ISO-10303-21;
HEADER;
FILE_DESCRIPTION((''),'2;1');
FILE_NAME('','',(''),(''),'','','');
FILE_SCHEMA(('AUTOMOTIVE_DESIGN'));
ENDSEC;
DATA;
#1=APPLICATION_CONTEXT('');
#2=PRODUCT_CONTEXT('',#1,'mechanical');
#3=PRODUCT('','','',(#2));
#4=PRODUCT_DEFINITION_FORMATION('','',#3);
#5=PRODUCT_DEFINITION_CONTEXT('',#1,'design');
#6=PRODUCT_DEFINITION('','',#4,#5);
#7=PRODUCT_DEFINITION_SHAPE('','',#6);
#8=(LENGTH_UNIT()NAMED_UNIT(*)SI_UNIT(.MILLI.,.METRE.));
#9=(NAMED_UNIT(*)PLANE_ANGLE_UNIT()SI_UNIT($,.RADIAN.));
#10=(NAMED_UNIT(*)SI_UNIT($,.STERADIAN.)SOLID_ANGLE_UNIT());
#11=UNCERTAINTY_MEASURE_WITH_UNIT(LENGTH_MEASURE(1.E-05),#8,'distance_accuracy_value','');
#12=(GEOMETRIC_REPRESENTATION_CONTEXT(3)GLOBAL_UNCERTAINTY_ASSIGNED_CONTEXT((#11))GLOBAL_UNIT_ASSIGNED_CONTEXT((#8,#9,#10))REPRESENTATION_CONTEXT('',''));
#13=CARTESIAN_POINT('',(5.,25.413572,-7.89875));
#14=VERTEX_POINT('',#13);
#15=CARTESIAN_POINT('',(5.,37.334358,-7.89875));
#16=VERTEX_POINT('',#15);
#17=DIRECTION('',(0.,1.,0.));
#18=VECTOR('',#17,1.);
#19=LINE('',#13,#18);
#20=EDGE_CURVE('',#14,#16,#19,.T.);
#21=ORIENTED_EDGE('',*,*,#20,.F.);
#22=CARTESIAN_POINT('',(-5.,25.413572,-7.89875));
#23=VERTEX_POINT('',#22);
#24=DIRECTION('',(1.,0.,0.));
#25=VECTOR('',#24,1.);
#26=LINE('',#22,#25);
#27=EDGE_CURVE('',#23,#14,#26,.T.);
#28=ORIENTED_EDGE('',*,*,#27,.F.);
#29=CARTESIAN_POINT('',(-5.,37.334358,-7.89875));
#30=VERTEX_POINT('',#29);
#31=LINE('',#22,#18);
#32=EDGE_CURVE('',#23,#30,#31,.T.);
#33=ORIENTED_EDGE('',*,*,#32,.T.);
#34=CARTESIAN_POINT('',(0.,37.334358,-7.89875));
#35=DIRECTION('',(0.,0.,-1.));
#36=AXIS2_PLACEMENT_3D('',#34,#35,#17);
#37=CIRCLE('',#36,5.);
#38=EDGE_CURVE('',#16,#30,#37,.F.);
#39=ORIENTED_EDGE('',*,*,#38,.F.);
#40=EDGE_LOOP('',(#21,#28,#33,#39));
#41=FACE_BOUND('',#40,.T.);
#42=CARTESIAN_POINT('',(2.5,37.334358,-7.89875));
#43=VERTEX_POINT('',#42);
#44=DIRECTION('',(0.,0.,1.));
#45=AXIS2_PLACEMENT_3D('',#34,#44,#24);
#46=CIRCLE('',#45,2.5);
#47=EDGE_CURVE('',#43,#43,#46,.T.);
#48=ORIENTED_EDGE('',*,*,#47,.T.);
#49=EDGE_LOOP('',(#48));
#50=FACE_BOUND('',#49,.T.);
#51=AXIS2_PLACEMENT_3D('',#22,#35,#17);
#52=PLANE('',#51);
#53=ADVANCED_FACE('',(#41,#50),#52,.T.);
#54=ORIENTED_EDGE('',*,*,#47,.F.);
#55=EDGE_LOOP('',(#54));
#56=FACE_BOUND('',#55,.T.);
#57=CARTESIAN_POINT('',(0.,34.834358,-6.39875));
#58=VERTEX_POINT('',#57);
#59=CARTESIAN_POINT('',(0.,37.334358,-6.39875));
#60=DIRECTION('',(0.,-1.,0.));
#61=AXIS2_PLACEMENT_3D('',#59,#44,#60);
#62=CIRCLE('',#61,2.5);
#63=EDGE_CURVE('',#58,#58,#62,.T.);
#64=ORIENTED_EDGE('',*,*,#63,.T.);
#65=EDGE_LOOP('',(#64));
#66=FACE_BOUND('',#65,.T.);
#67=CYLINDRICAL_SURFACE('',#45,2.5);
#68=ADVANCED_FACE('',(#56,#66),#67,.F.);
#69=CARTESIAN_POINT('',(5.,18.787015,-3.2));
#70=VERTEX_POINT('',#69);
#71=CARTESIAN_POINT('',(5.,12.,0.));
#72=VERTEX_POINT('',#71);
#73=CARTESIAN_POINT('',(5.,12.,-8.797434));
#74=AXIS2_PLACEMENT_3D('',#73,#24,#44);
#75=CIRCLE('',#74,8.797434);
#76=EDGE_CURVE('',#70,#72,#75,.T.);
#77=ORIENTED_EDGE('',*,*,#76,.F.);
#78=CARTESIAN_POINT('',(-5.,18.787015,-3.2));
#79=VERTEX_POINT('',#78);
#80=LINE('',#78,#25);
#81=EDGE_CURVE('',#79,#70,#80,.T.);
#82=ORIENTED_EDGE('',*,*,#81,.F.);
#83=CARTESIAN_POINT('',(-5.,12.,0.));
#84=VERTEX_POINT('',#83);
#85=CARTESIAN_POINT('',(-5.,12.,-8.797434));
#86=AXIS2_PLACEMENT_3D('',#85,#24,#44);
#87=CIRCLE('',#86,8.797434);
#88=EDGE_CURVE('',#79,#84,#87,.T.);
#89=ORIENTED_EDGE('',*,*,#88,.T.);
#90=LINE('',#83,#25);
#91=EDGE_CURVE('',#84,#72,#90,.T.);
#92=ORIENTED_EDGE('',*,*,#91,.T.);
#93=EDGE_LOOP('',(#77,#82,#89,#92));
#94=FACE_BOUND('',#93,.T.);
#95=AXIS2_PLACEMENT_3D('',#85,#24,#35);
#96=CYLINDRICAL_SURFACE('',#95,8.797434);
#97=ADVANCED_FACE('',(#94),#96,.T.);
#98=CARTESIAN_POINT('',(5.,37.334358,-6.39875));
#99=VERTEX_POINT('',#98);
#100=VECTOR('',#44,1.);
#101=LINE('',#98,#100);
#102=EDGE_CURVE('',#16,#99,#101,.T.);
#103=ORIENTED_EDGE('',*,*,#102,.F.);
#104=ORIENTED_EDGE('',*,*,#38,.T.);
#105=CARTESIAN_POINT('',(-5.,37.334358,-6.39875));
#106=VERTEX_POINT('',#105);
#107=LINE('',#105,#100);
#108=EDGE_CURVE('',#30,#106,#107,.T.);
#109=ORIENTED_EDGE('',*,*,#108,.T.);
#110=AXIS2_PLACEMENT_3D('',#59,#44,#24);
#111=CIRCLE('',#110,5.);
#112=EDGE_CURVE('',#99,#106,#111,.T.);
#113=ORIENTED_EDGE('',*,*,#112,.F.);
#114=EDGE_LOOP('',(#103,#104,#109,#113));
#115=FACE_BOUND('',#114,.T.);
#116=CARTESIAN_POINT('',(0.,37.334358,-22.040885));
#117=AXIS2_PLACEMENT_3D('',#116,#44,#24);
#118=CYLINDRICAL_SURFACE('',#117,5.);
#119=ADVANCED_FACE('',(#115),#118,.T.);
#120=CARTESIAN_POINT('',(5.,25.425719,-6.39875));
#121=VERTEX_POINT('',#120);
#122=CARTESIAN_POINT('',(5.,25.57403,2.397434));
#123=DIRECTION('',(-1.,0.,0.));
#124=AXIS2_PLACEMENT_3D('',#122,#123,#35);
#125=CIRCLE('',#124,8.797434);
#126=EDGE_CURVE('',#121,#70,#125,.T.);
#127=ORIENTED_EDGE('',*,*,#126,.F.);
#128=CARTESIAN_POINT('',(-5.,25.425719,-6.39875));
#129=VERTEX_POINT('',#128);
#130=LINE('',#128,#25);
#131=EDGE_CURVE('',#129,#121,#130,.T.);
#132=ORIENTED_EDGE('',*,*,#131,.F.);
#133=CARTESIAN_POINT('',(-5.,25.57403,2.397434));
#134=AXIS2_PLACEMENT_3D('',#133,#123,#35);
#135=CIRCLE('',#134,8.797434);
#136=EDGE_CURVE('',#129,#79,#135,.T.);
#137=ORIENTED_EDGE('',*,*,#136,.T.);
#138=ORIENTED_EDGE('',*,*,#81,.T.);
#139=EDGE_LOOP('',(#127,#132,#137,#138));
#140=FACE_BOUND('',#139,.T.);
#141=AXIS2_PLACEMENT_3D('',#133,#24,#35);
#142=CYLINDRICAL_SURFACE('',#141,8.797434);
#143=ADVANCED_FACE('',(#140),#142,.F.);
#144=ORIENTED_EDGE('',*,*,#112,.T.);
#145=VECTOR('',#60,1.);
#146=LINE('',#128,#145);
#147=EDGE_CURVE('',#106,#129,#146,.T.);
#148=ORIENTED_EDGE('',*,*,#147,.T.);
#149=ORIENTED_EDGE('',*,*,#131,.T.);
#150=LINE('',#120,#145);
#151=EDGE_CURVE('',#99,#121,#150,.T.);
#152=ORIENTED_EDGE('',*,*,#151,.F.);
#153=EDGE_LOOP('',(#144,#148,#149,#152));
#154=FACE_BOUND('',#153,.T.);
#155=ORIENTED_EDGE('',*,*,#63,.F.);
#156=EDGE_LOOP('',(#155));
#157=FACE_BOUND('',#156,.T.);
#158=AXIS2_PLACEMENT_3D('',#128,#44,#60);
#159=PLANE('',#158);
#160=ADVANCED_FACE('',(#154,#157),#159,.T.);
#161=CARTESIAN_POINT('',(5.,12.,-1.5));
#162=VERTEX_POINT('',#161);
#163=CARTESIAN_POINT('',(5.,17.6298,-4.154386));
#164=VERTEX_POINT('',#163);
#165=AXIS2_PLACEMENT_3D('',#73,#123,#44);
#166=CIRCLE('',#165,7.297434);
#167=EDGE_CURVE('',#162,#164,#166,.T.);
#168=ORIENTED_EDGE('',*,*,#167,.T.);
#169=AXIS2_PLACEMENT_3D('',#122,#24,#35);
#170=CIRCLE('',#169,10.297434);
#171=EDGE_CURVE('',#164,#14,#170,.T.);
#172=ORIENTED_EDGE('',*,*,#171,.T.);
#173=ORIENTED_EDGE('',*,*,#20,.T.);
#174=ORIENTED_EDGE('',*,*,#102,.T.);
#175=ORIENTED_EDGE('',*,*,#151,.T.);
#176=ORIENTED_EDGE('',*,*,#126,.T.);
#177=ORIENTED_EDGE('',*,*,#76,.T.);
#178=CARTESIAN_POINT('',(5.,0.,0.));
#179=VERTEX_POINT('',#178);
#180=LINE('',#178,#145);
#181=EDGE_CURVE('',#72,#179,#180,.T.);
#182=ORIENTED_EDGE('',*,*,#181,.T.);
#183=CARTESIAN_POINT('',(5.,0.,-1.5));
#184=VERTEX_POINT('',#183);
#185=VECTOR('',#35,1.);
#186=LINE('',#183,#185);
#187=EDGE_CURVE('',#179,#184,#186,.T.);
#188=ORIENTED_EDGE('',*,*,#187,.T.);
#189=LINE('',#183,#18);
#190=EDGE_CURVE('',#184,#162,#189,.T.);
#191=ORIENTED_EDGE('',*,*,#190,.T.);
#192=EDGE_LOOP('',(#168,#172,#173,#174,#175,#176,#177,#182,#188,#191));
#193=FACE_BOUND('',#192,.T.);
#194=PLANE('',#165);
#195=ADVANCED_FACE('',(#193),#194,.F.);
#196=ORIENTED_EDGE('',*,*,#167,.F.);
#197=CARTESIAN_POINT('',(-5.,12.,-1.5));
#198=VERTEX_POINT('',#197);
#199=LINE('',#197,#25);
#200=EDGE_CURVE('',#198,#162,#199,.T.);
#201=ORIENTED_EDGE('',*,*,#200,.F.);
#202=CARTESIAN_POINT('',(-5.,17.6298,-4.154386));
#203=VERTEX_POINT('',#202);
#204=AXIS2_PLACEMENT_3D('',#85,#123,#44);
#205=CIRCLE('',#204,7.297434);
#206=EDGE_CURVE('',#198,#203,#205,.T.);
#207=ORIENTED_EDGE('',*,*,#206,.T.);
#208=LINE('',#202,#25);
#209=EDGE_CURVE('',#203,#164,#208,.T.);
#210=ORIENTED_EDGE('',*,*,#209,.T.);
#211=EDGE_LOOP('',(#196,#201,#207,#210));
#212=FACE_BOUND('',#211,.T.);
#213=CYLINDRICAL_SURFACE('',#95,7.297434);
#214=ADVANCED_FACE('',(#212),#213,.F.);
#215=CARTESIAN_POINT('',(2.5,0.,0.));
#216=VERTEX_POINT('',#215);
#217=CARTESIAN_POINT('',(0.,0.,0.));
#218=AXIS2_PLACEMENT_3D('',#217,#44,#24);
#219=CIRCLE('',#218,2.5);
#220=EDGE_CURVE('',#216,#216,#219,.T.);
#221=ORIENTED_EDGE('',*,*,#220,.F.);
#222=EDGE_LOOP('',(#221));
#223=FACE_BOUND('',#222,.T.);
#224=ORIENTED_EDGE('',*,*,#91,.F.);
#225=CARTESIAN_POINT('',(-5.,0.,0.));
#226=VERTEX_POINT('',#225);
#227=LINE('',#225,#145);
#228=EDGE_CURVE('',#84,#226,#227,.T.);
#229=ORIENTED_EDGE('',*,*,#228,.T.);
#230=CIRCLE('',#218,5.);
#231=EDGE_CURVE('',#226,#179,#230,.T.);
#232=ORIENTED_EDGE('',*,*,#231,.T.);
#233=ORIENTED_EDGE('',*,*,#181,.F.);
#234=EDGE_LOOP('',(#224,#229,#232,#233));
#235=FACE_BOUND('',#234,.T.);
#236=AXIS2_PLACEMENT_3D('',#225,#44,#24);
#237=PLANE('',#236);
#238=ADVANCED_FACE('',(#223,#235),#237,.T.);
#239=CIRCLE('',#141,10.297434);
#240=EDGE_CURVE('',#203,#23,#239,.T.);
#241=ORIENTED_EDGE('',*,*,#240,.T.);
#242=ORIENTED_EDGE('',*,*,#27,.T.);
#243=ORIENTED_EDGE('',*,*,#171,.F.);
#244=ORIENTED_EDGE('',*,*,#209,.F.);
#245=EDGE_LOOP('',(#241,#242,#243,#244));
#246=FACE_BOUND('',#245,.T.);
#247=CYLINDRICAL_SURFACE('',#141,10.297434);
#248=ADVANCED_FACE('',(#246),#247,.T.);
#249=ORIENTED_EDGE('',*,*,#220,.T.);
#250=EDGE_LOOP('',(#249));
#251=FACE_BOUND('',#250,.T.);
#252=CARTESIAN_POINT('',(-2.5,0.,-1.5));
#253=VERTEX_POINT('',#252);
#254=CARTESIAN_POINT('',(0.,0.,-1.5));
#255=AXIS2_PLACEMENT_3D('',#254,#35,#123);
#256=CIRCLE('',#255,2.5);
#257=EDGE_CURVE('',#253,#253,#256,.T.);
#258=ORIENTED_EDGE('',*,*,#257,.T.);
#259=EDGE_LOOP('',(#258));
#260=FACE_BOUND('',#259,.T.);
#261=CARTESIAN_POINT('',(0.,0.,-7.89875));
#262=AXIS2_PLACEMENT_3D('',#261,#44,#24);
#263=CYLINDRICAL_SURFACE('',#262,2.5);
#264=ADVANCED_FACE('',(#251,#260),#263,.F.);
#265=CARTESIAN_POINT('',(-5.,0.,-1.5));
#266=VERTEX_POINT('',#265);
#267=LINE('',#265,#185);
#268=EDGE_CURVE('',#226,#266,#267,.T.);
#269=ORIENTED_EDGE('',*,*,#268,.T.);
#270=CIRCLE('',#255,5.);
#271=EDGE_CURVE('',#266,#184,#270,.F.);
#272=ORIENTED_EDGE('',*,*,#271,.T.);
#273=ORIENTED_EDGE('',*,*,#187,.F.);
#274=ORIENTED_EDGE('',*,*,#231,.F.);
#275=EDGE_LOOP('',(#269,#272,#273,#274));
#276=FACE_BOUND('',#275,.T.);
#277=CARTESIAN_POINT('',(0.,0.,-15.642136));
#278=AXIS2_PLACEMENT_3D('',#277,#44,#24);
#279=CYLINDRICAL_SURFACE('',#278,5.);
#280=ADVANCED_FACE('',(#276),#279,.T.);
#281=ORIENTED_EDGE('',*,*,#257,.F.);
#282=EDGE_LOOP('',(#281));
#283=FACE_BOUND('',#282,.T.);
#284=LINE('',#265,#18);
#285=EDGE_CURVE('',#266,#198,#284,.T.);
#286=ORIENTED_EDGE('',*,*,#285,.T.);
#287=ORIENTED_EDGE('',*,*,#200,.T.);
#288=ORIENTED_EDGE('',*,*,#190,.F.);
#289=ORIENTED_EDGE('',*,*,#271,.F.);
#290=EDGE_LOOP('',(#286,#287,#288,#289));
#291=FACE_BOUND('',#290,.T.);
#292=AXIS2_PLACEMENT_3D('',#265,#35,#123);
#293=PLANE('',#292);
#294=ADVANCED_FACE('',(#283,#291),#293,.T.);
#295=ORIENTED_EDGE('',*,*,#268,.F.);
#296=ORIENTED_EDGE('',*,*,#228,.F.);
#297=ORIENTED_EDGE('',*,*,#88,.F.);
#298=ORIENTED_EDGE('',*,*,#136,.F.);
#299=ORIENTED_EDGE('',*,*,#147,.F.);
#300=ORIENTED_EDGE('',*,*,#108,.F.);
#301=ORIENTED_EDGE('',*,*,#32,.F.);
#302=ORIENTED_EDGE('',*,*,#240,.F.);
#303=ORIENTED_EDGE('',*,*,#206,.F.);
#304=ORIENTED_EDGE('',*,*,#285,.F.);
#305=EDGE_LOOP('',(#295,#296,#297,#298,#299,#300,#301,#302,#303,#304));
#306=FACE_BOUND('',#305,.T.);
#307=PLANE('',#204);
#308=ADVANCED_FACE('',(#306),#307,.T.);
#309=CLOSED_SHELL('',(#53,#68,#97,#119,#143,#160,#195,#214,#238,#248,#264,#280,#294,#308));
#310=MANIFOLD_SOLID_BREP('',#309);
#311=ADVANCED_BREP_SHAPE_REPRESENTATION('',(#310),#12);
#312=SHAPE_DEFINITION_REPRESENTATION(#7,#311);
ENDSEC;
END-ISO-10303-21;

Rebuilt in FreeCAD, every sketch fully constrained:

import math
import FreeCAD as App
import Part
import Sketcher
from FreeCAD import Vector

doc = App.newDocument("Part")
body = doc.addObject("PartDesign::Body", "Body")

# Sketch on YZ plane
sketch1 = body.newObject("Sketcher::SketchObject", "Sketch")
sketch1.AttachmentSupport = (doc.getObject("YZ_Plane"), [""])
sketch1.MapMode = "FlatFace"
sketch1.addGeometry([
    Part.LineSegment(Vector(0, -1.5, 0), Vector(12, -1.5, 0)),  # 0
    Part.ArcOfCircle(Part.Circle(Vector(12, -8.797434, 0), Vector(0, 0, 1), 7.297434), math.radians(39.513318), math.radians(90)),  # 1
    Part.ArcOfCircle(Part.Circle(Vector(25.57403, 2.397434, 0), Vector(0, 0, 1), 10.297434), math.radians(-140.486682), math.radians(-90.892839)),  # 2
    Part.LineSegment(Vector(25.413572, -7.89875, 0), Vector(37.334358, -7.89875, 0)),  # 3
    Part.LineSegment(Vector(37.334358, -7.89875, 0), Vector(37.334358, -6.39875, 0)),  # 4
    Part.LineSegment(Vector(37.334358, -6.39875, 0), Vector(25.425719, -6.39875, 0)),  # 5
    Part.ArcOfCircle(Part.Circle(Vector(25.57403, 2.397434, 0), Vector(0, 0, 1), 8.797434), math.radians(-140.486682), math.radians(-90.965963)),  # 6
    Part.ArcOfCircle(Part.Circle(Vector(12, -8.797434, 0), Vector(0, 0, 1), 8.797434), math.radians(39.513318), math.radians(90)),  # 7
    Part.LineSegment(Vector(12, 0, 0), Vector(0, 0, 0)),  # 8
    Part.LineSegment(Vector(0, 0, 0), Vector(0, -1.5, 0)),  # 9
], False)
sketch1.addConstraint([
    Sketcher.Constraint("Tangent", 0, 2, 1, 2),
    Sketcher.Constraint("Tangent", 1, 1, 2, 1),
    Sketcher.Constraint("Coincident", 2, 2, 3, 1),
    Sketcher.Constraint("Coincident", 3, 2, 4, 1),
    Sketcher.Constraint("Coincident", 4, 2, 5, 1),
    Sketcher.Constraint("Coincident", 5, 2, 6, 2),
    Sketcher.Constraint("Tangent", 6, 1, 7, 1),
    Sketcher.Constraint("Tangent", 7, 2, 8, 1),
    Sketcher.Constraint("Coincident", 8, 2, 9, 1),
    Sketcher.Constraint("Coincident", 9, 2, 0, 1),
    Sketcher.Constraint("Horizontal", 0),
    Sketcher.Constraint("Horizontal", 3),
    Sketcher.Constraint("Vertical", 4),
    Sketcher.Constraint("Horizontal", 5),
    Sketcher.Constraint("Horizontal", 8),
    Sketcher.Constraint("Vertical", 9),
    Sketcher.Constraint("Coincident", 8, 2, -1, 1),
    Sketcher.Constraint("Coincident", 6, 3, 2, 3),
    Sketcher.Constraint("Coincident", 7, 3, 1, 3),
    Sketcher.Constraint("Equal", 6, 7),
    Sketcher.Constraint("Equal", 4, 9),
    Sketcher.Constraint("DistanceX", 0, 1, 0, 2, 12.0),
    Sketcher.Constraint("DistanceY", 4, 1, 4, 2, 1.5),
    Sketcher.Constraint("DistanceY", 6, 1, -1, 1, 3.2),
    Sketcher.Constraint("Radius", 1, 7.297434),
    Sketcher.Constraint("DistanceX", 5, 2, 5, 1, 11.908639),
    Sketcher.Constraint("DistanceX", 3, 1, 3, 2, 11.920786),
])
pad1 = body.newObject("PartDesign::Pad", "Pad")
pad1.Profile = sketch1
pad1.Length = 10
pad1.Midplane = True

# Sketch on XY plane
sketch2 = body.newObject("Sketcher::SketchObject", "Sketch001")
sketch2.AttachmentSupport = (doc.getObject("XY_Plane"), [""])
sketch2.MapMode = "FlatFace"
sketch2.addGeometry(Part.Circle(Vector(0, 0, 0), Vector(0, 0, 1), 5), False)
sketch2.addConstraint([
    Sketcher.Constraint("Coincident", 0, 3, -1, 1),
    Sketcher.Constraint("Diameter", 0, 10.0),
])
pad2 = body.newObject("PartDesign::Pad", "Pad001")
pad2.Profile = sketch2
pad2.Length = 1.5
pad2.Reversed = True

# Sketch on XY plane
sketch3 = body.newObject("Sketcher::SketchObject", "Sketch002")
sketch3.AttachmentSupport = (doc.getObject("XY_Plane"), [""])
sketch3.MapMode = "FlatFace"
sketch3.AttachmentOffset = App.Placement(Vector(0, 0, -6.39875), App.Rotation())
sketch3.addGeometry(Part.Circle(Vector(0, 37.334358, 0), Vector(0, 0, 1), 5), False)
sketch3.addConstraint([
    Sketcher.Constraint("PointOnObject", 0, 3, -2),
    Sketcher.Constraint("Diameter", 0, 10.0),
    Sketcher.Constraint("DistanceY", -1, 1, 0, 3, 37.334358),
])
pad3 = body.newObject("PartDesign::Pad", "Pad002")
pad3.Profile = sketch3
pad3.Length = 1.5
pad3.Reversed = True

# Sketch on XY plane
sketch4 = body.newObject("Sketcher::SketchObject", "Sketch003")
sketch4.AttachmentSupport = (doc.getObject("XY_Plane"), [""])
sketch4.MapMode = "FlatFace"
sketch4.addGeometry([
    Part.Circle(Vector(0, 0, 0), Vector(0, 0, 1), 2.5),
    Part.Circle(Vector(0, 37.334358, 0), Vector(0, 0, 1), 2.5),
], False)
sketch4.addConstraint([
    Sketcher.Constraint("Coincident", 0, 3, -1, 1),
    Sketcher.Constraint("Equal", 0, 1),
    Sketcher.Constraint("PointOnObject", 1, 3, -2),
    Sketcher.Constraint("Diameter", 0, 5.0),
    Sketcher.Constraint("DistanceY", -1, 1, 1, 3, 37.334358),
])
pocket1 = body.newObject("PartDesign::Pocket", "Pocket")
pocket1.Profile = sketch4
pocket1.Type = "ThroughAll"

doc.recompute()
